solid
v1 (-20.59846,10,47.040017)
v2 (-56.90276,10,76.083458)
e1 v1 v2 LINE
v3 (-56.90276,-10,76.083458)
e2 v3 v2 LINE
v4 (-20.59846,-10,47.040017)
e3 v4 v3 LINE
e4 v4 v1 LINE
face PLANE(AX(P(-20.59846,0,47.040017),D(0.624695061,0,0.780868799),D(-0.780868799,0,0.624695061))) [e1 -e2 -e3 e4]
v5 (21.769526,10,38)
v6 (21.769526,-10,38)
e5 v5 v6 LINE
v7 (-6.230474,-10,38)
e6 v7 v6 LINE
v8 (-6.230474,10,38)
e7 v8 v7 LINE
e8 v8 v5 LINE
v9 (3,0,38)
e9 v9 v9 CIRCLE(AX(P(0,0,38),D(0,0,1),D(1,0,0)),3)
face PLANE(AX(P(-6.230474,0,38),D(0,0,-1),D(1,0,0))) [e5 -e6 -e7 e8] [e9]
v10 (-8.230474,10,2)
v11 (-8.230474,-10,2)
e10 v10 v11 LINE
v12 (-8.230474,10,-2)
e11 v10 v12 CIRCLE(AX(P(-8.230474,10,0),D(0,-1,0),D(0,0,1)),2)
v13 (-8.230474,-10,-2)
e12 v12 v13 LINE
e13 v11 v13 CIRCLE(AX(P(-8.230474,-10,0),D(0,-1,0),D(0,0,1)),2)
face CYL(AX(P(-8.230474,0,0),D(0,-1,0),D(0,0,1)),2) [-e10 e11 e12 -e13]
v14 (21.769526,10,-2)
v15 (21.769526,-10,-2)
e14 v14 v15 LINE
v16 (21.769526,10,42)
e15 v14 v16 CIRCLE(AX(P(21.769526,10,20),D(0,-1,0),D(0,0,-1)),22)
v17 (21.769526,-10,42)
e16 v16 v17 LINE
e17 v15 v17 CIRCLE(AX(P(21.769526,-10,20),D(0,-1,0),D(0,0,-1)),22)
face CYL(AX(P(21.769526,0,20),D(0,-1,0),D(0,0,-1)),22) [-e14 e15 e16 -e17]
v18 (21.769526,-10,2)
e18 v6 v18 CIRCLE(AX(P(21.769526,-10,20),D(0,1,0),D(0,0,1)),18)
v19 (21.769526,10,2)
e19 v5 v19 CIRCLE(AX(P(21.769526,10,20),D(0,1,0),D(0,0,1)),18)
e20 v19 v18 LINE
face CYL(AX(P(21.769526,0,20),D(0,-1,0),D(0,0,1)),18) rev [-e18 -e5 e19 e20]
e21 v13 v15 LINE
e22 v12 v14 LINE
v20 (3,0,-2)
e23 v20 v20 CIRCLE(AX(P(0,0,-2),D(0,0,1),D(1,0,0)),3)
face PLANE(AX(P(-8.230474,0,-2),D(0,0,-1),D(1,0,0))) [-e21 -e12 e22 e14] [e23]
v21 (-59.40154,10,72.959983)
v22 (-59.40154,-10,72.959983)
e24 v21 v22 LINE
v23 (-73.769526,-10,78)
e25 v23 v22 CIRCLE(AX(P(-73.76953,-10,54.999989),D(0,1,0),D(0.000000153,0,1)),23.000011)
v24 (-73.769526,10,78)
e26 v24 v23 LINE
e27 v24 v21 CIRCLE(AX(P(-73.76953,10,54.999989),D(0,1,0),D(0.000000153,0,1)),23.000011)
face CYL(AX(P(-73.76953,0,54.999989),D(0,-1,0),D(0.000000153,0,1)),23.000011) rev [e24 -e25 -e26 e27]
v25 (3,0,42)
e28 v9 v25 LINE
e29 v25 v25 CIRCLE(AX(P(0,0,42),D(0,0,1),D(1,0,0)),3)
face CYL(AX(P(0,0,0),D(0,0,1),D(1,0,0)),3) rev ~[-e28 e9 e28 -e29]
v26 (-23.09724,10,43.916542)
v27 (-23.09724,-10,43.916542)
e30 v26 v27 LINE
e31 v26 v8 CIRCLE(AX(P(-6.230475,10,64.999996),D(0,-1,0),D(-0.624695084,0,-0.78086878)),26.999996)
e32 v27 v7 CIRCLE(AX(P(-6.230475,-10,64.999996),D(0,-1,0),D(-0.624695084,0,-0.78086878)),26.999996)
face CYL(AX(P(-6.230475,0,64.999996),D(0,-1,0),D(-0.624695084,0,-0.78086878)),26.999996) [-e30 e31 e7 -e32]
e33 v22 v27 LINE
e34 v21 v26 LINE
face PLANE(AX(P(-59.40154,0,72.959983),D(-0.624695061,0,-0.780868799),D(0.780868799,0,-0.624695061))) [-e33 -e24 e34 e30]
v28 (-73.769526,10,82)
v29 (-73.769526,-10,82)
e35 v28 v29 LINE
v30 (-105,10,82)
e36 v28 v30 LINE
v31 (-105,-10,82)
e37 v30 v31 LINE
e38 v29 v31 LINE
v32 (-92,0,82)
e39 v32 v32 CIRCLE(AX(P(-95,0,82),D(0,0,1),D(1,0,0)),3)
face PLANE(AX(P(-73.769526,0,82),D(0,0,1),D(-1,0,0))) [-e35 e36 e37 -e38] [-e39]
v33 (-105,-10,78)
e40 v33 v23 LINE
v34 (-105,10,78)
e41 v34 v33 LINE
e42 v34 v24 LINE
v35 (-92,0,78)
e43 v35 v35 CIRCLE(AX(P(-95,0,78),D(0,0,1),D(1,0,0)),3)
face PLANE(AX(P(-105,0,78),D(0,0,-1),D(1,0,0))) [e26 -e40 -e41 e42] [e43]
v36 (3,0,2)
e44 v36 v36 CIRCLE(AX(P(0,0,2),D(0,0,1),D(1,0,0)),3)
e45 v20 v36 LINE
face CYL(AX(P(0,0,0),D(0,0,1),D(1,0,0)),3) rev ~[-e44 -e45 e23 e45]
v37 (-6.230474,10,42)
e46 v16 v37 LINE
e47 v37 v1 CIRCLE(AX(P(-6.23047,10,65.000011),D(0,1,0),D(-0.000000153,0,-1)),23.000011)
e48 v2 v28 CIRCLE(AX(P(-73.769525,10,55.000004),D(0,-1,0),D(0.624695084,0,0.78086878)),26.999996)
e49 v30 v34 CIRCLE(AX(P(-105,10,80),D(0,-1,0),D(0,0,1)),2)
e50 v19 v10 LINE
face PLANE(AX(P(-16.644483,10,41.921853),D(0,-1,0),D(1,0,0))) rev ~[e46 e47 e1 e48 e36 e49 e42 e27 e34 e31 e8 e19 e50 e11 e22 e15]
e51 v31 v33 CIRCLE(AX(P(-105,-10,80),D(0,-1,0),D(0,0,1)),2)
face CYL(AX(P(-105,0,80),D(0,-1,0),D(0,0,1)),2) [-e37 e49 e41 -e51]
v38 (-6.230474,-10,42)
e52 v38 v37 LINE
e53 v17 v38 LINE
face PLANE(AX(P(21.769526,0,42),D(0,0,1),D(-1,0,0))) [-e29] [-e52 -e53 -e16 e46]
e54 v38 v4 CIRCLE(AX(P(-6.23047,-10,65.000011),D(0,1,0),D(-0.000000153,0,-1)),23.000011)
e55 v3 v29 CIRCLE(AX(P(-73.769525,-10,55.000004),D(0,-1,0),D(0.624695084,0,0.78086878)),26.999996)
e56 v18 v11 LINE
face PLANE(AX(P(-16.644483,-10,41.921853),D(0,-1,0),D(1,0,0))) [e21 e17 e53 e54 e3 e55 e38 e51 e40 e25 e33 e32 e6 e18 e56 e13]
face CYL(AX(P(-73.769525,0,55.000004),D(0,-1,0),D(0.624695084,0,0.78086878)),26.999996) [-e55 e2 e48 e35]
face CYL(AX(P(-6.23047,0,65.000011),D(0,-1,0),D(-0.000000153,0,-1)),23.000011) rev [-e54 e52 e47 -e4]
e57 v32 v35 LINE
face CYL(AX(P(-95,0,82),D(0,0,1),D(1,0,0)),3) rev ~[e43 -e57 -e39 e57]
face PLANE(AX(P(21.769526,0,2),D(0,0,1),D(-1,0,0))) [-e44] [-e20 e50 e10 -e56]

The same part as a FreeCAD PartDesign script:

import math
import FreeCAD as App
import Part
import Sketcher

doc = App.newDocument("Part")
body = doc.addObject("PartDesign::Body", "Body")

# Sketch on XZ plane
sketch1 = body.newObject("Sketcher::SketchObject", "Sketch")
sketch1.AttachmentSupport = (doc.getObject("XZ_Plane"), [""])
sketch1.MapMode = "FlatFace"
sketch1.addGeometry(Part.ArcOfCircle(Part.Circle(App.Vector(-73.769525, 55.000004, 0), App.Vector(0, 0, 1), 26.999996), math.radians(51.340189), math.radians(90.000003)), False)
sketch1.addGeometry(Part.LineSegment(App.Vector(-73.769526, 82, 0), App.Vector(-105, 82, 0)), False)
sketch1.addGeometry(Part.ArcOfCircle(Part.Circle(App.Vector(-105, 80, 0), App.Vector(0, 0, 1), 2), math.radians(90), math.radians(270)), False)
sketch1.addGeometry(Part.LineSegment(App.Vector(-105, 78, 0), App.Vector(-73.769526, 78, 0)), False)
sketch1.addGeometry(Part.ArcOfCircle(Part.Circle(App.Vector(-73.76953, 54.999989, 0), App.Vector(0, 0, 1), 23.000011), math.radians(51.340203), math.radians(89.999991)), False)
sketch1.addGeometry(Part.LineSegment(App.Vector(-59.40154, 72.959983, 0), App.Vector(-23.09724, 43.916542, 0)), False)
sketch1.addGeometry(Part.ArcOfCircle(Part.Circle(App.Vector(-6.230475, 64.999996, 0), App.Vector(0, 0, 1), 26.999996), math.radians(-128.659811), math.radians(-89.999997)), False)
sketch1.addGeometry(Part.LineSegment(App.Vector(-6.230474, 38, 0), App.Vector(21.769526, 38, 0)), False)
sketch1.addGeometry(Part.ArcOfCircle(Part.Circle(App.Vector(21.769526, 20, 0), App.Vector(0, 0, 1), 18), math.radians(-90), math.radians(90)), False)
sketch1.addGeometry(Part.LineSegment(App.Vector(21.769526, 2, 0), App.Vector(-8.230474, 2, 0)), False)
sketch1.addGeometry(Part.ArcOfCircle(Part.Circle(App.Vector(-8.230474, 0, 0), App.Vector(0, 0, 1), 2), math.radians(90), math.radians(270)), False)
sketch1.addGeometry(Part.LineSegment(App.Vector(-8.230474, -2, 0), App.Vector(21.769526, -2, 0)), False)
sketch1.addGeometry(Part.ArcOfCircle(Part.Circle(App.Vector(21.769526, 20, 0), App.Vector(0, 0, 1), 22), math.radians(-90), math.radians(90)), False)
sketch1.addGeometry(Part.LineSegment(App.Vector(21.769526, 42, 0), App.Vector(-6.230474, 42, 0)), False)
sketch1.addGeometry(Part.ArcOfCircle(Part.Circle(App.Vector(-6.23047, 65.000011, 0), App.Vector(0, 0, 1), 23.000011), math.radians(-128.659797), math.radians(-90.000009)), False)
sketch1.addGeometry(Part.LineSegment(App.Vector(-20.59846, 47.040017, 0), App.Vector(-56.90276, 76.083458, 0)), False)
sketch1.addConstraint(Sketcher.Constraint("Tangent", 0, 2, 1, 1))
sketch1.addConstraint(Sketcher.Constraint("Tangent", 1, 2, 2, 1))
sketch1.addConstraint(Sketcher.Constraint("Tangent", 2, 2, 3, 1))
sketch1.addConstraint(Sketcher.Constraint("Tangent", 3, 2, 4, 2))
sketch1.addConstraint(Sketcher.Constraint("Tangent", 4, 1, 5, 1))
sketch1.addConstraint(Sketcher.Constraint("Tangent", 5, 2, 6, 1))
sketch1.addConstraint(Sketcher.Constraint("Tangent", 6, 2, 7, 1))
sketch1.addConstraint(Sketcher.Constraint("Tangent", 7, 2, 8, 2))
sketch1.addConstraint(Sketcher.Constraint("Tangent", 8, 1, 9, 1))
sketch1.addConstraint(Sketcher.Constraint("Tangent", 9, 2, 10, 1))
sketch1.addConstraint(Sketcher.Constraint("Tangent", 10, 2, 11, 1))
sketch1.addConstraint(Sketcher.Constraint("Tangent", 11, 2, 12, 1))
sketch1.addConstraint(Sketcher.Constraint("Tangent", 12, 2, 13, 1))
sketch1.addConstraint(Sketcher.Constraint("Tangent", 13, 2, 14, 2))
sketch1.addConstraint(Sketcher.Constraint("Tangent", 14, 1, 15, 1))
sketch1.addConstraint(Sketcher.Constraint("Tangent", 15, 2, 0, 1))
sketch1.addConstraint(Sketcher.Constraint("Horizontal", 1))
sketch1.addConstraint(Sketcher.Constraint("Horizontal", 3))
sketch1.addConstraint(Sketcher.Constraint("Horizontal", 7))
sketch1.addConstraint(Sketcher.Constraint("Horizontal", 9))
sketch1.addConstraint(Sketcher.Constraint("Horizontal", 11))
sketch1.addConstraint(Sketcher.Constraint("Horizontal", 13))
sketch1.addConstraint(Sketcher.Constraint("Coincident", 12, 3, 8, 3))
sketch1.addConstraint(Sketcher.Constraint("Equal", 0, 6))
sketch1.addConstraint(Sketcher.Constraint("Equal", 2, 10))
sketch1.addConstraint(Sketcher.Constraint("Equal", 4, 14))
sketch1.addConstraint(Sketcher.Constraint("PointOnObject", 10, 3, -1))
sketch1.addConstraint(Sketcher.Constraint("Parallel", 5, 15))
sketch1.addConstraint(Sketcher.Constraint("Vertical", 0, 2, 3, 2))
sketch1.addConstraint(Sketcher.Constraint("Radius", 2, 2.0))
sketch1.addConstraint(Sketcher.Constraint("Radius", 8, 18.0))
sketch1.addConstraint(Sketcher.Constraint("DistanceX", 7, 1, 7, 2, 28.0))
sketch1.addConstraint(Sketcher.Constraint("DistanceX", 9, 2, 9, 1, 30.0))
sketch1.addConstraint(Sketcher.Constraint("DistanceX", 2, 3, -1, 1, 105.0))
sketch1.addConstraint(Sketcher.Constraint("DistanceY", -1, 1, 2, 3, 80.0))
sketch1.addConstraint(Sketcher.Constraint("Radius", 4, 23.000011))
sketch1.addConstraint(Sketcher.Constraint("Radius", 0, 26.999996))
sketch1.addConstraint(Sketcher.Constraint("DistanceX", 4, 1, 5, 2, 36.3043))
sketch1.addConstraint(Sketcher.Constraint("DistanceX", 1, 2, 1, 1, 31.230474))
pad1 = body.newObject("PartDesign::Pad", "Pad")
pad1.Profile = sketch1
pad1.Length = 20
pad1.Midplane = True

# Sketch on XY plane
sketch2 = body.newObject("Sketcher::SketchObject", "Sketch001")
sketch2.AttachmentSupport = (doc.getObject("XY_Plane"), [""])
sketch2.MapMode = "FlatFace"
sketch2.addGeometry(Part.Circle(App.Vector(0, 0, 0), App.Vector(0, 0, 1), 3), False)
sketch2.addConstraint(Sketcher.Constraint("Coincident", 0, 3, -1, 1))
sketch2.addConstraint(Sketcher.Constraint("Diameter", 0, 6.0))
pocket1 = body.newObject("PartDesign::Pocket", "Pocket")
pocket1.Profile = sketch2
pocket1.Length = 100
pocket1.Midplane = True

# Sketch on XY plane
sketch3 = body.newObject("Sketcher::SketchObject", "Sketch002")
sketch3.AttachmentSupport = (doc.getObject("XY_Plane"), [""])
sketch3.MapMode = "FlatFace"
sketch3.AttachmentOffset = App.Placement(App.Vector(0, 0, 82), App.Rotation())
sketch3.addGeometry(Part.Circle(App.Vector(-95, 0, 0), App.Vector(0, 0, 1), 3), False)
sketch3.addConstraint(Sketcher.Constraint("PointOnObject", 0, 3, -1))
sketch3.addConstraint(Sketcher.Constraint("Diameter", 0, 6.0))
sketch3.addConstraint(Sketcher.Constraint("DistanceX", 0, 3, -1, 1, 95.0))
pocket2 = body.newObject("PartDesign::Pocket", "Pocket001")
pocket2.Profile = sketch3
pocket2.Length = 25

doc.recompute()
